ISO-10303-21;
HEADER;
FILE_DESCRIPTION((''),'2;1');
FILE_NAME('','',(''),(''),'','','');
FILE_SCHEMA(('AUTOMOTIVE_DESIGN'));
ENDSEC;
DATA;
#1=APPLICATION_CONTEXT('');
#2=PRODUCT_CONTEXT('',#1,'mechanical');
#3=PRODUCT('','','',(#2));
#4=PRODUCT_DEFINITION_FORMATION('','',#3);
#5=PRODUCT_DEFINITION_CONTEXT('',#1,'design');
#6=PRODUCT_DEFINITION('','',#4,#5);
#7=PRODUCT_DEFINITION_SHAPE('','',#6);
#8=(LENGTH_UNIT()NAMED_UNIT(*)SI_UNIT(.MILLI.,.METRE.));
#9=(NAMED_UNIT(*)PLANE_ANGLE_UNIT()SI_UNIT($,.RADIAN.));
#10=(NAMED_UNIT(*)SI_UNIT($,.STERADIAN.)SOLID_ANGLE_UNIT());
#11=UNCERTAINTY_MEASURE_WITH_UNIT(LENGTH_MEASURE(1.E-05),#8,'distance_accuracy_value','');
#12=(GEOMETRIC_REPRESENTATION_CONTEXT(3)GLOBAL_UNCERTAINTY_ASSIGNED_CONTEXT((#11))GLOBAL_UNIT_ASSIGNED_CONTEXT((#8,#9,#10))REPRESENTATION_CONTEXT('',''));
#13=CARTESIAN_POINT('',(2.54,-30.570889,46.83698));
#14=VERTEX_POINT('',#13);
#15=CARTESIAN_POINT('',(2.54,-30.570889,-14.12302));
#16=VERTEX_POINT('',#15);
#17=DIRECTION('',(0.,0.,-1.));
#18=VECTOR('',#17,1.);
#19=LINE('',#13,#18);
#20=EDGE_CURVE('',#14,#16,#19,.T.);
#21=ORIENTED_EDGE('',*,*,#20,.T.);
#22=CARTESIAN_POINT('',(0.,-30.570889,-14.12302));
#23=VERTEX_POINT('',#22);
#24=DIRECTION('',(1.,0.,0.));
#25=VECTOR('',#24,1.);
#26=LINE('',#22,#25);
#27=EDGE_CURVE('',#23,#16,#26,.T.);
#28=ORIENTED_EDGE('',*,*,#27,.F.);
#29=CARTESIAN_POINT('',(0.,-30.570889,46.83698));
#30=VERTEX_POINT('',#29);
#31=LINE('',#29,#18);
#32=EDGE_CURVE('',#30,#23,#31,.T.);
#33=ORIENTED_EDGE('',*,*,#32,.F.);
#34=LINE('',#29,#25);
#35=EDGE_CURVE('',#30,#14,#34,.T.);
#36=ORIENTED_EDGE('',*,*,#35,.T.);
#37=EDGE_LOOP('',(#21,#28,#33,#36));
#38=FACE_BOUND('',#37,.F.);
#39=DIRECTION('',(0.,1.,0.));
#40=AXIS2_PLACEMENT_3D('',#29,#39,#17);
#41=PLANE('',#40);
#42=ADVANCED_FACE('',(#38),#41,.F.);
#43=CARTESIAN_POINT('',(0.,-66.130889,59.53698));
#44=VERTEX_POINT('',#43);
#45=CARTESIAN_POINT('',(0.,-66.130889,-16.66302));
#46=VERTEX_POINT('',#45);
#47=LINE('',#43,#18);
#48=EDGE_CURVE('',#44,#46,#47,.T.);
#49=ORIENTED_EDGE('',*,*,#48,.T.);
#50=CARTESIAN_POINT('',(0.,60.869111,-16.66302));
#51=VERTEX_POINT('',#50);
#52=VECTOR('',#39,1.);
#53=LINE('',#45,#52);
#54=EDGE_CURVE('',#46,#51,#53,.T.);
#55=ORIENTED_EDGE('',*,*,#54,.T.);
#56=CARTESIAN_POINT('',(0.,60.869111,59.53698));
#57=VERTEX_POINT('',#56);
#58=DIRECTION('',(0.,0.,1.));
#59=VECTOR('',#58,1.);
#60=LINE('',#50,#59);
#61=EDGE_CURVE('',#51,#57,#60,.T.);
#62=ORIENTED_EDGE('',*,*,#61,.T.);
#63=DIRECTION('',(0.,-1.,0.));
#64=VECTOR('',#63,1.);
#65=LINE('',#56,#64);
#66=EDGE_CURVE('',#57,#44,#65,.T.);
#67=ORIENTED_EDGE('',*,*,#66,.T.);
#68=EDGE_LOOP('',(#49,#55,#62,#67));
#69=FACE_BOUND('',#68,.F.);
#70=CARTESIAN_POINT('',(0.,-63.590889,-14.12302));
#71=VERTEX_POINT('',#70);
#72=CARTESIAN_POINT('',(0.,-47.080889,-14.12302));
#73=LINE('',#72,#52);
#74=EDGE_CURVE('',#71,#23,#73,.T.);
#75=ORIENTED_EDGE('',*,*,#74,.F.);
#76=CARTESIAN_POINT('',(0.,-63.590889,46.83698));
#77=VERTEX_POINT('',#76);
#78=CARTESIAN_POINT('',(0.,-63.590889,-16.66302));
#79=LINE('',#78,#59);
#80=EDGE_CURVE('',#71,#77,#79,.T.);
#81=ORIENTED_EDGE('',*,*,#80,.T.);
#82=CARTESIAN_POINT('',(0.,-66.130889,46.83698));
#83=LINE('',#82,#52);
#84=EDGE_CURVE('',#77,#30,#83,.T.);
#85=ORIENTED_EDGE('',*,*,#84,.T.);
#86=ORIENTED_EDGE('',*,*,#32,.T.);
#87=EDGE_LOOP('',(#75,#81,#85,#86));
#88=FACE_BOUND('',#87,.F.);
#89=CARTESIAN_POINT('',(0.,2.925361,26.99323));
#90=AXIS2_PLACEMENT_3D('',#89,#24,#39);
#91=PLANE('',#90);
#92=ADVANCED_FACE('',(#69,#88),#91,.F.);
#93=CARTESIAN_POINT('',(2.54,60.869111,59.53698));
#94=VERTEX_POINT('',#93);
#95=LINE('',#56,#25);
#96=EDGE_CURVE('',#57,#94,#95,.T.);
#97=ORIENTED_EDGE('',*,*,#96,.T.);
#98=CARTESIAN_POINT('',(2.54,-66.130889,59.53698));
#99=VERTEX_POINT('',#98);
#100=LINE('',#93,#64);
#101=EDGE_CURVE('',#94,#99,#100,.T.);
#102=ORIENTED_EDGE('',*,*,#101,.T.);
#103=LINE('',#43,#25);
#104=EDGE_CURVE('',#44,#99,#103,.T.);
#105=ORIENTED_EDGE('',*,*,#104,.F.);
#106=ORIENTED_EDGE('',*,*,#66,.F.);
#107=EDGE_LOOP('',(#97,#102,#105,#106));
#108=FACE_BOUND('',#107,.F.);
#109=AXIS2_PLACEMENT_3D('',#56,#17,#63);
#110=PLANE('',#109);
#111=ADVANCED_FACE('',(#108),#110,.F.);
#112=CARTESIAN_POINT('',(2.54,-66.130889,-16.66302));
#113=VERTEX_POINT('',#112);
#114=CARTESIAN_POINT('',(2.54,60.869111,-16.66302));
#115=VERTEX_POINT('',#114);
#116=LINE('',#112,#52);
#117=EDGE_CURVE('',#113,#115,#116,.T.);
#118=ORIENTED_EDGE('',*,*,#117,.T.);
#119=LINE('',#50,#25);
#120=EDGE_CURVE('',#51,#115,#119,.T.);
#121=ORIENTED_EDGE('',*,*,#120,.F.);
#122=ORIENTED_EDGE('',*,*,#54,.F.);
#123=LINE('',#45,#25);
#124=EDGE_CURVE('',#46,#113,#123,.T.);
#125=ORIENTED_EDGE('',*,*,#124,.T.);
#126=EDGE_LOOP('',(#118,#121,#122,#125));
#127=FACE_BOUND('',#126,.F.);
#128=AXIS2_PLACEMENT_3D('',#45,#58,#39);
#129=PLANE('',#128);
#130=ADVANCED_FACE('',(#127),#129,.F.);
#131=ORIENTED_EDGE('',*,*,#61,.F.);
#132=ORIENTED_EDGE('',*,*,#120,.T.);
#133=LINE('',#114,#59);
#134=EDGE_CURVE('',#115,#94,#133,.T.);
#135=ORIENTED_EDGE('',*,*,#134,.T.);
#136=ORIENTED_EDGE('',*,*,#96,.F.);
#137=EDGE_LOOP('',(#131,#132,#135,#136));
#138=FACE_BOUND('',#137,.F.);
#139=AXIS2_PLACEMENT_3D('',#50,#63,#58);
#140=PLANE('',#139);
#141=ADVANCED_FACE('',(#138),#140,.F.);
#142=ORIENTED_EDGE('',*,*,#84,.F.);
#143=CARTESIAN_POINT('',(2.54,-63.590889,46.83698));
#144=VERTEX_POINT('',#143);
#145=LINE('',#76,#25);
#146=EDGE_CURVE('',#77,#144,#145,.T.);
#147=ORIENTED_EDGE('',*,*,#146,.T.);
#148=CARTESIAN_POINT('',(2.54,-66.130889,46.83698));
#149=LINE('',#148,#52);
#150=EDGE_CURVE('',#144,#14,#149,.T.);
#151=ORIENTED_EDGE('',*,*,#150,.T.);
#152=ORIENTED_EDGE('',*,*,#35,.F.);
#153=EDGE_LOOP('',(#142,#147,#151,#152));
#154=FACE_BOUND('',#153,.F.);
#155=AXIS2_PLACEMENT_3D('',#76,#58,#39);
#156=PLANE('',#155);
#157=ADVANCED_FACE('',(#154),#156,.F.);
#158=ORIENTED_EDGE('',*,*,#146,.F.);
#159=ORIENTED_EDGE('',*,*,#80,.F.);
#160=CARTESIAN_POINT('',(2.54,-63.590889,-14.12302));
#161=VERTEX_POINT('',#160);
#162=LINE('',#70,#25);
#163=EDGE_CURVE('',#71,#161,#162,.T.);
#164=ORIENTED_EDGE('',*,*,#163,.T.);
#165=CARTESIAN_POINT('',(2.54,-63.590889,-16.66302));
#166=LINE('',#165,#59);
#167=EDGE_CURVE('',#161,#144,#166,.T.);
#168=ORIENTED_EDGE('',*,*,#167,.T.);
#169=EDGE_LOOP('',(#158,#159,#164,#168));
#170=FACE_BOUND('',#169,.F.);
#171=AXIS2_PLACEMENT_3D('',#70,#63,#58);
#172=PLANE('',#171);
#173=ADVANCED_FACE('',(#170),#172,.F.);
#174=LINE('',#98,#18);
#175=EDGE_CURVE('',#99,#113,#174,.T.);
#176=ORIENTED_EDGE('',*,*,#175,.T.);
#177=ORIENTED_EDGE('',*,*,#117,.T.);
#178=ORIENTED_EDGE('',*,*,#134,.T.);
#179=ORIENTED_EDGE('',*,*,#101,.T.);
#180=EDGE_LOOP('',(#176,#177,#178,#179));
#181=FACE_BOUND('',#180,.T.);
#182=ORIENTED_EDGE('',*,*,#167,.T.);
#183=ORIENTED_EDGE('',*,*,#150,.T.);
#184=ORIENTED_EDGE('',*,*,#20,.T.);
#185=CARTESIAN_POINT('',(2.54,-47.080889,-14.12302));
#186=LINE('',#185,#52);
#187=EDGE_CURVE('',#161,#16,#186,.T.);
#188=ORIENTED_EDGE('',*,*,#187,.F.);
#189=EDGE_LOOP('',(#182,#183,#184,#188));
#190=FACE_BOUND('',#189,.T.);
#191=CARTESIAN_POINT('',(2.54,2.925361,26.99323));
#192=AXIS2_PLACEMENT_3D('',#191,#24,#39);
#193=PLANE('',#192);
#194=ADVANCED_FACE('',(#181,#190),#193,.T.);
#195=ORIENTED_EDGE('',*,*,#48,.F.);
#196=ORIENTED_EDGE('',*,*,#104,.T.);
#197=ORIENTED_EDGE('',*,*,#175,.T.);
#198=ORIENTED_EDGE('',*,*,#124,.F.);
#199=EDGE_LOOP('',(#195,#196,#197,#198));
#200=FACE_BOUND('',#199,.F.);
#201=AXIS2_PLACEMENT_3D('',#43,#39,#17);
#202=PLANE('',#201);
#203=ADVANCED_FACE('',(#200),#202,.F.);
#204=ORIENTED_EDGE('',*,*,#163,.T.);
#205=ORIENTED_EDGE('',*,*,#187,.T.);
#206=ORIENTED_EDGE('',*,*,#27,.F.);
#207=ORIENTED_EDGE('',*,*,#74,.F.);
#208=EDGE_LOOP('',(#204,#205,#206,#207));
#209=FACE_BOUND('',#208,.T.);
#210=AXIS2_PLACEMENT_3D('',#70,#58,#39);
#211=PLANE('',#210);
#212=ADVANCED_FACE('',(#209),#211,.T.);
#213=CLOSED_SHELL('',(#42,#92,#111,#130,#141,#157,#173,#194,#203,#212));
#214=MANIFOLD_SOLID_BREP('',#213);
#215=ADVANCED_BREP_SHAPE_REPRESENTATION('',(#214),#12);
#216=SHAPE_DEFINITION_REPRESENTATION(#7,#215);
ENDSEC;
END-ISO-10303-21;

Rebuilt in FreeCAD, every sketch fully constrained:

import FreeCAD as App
import Part
import Sketcher
from FreeCAD import Vector
Q = App.Units.Quantity

doc = App.newDocument("Part")
params = doc.addObject("Spreadsheet::Sheet", "Params")
for row, (alias, value) in enumerate([
    ("sketch1_width", "5 in"),
    ("sketch1_height", "3 in"),
    ("sketch1_width2", "1.3 in"),
    ("sketch1_height2", "2.4 in"),
    ("pad1_length", "0.1 in"),
], start=1):
    params.set(f"A{row}", alias)
    params.set(f"B{row}", "=" + value)
    params.setAlias(f"B{row}", alias)

body = doc.addObject("PartDesign::Body", "Body")

# Sketch on YZ plane
sketch1 = body.newObject("Sketcher::SketchObject", "Sketch")
sketch1.AttachmentSupport = (doc.getObject("YZ_Plane"), [""])
sketch1.MapMode = "FlatFace"
sketch1.addGeometry(Part.LineSegment(Vector(-66, 60, 0), Vector(-66, -17, 0)), False)
sketch1.addGeometry(Part.LineSegment(Vector(-66, -17, 0), Vector(61, -17, 0)), False)
sketch1.addGeometry(Part.LineSegment(Vector(61, -17, 0), Vector(61, 60, 0)), False)
sketch1.addGeometry(Part.LineSegment(Vector(61, 60, 0), Vector(-66, 60, 0)), False)
sketch1.addGeometry(Part.LineSegment(Vector(-64, -14, 0), Vector(-64, 47, 0)), False)
sketch1.addGeometry(Part.LineSegment(Vector(-64, 47, 0), Vector(-31, 47, 0)), False)
sketch1.addGeometry(Part.LineSegment(Vector(-31, 47, 0), Vector(-31, -14, 0)), False)
sketch1.addGeometry(Part.LineSegment(Vector(-31, -14, 0), Vector(-64, -14, 0)), False)
sketch1.addConstraint(Sketcher.Constraint("Coincident", 0, 2, 1, 1))
sketch1.addConstraint(Sketcher.Constraint("Coincident", 1, 2, 2, 1))
sketch1.addConstraint(Sketcher.Constraint("Coincident", 2, 2, 3, 1))
sketch1.addConstraint(Sketcher.Constraint("Coincident", 3, 2, 0, 1))
sketch1.addConstraint(Sketcher.Constraint("Coincident", 4, 2, 5, 1))
sketch1.addConstraint(Sketcher.Constraint("Coincident", 5, 2, 6, 1))
sketch1.addConstraint(Sketcher.Constraint("Coincident", 6, 2, 7, 1))
sketch1.addConstraint(Sketcher.Constraint("Coincident", 7, 2, 4, 1))
sketch1.addConstraint(Sketcher.Constraint("Vertical", 0))
sketch1.addConstraint(Sketcher.Constraint("Horizontal", 1))
sketch1.addConstraint(Sketcher.Constraint("Vertical", 2))
sketch1.addConstraint(Sketcher.Constraint("Horizontal", 3))
sketch1.addConstraint(Sketcher.Constraint("Vertical", 4))
sketch1.addConstraint(Sketcher.Constraint("Horizontal", 5))
sketch1.addConstraint(Sketcher.Constraint("Vertical", 6))
sketch1.addConstraint(Sketcher.Constraint("Horizontal", 7))
sketch1.addConstraint(Sketcher.Constraint("DistanceX", 1, 1, 1, 2, Q("5 in")))
sketch1.addConstraint(Sketcher.Constraint("DistanceY", 0, 2, 0, 1, Q("3 in")))
sketch1.addConstraint(Sketcher.Constraint("DistanceX", 5, 1, 5, 2, Q("1.3 in")))
sketch1.addConstraint(Sketcher.Constraint("DistanceY", 4, 1, 4, 2, Q("2.4 in")))
sketch1.addConstraint(Sketcher.Constraint("DistanceX", 3, 2, 4, 2, Q("0.1 in")))
sketch1.addConstraint(Sketcher.Constraint("DistanceY", 4, 2, 3, 2, Q("0.5 in")))
sketch1.addConstraint(Sketcher.Constraint("DistanceX", 0, 2, -1, 1, Q("66.130889 mm")))
sketch1.addConstraint(Sketcher.Constraint("DistanceY", 0, 2, -1, 1, Q("16.66302 mm")))
sketch1.setExpression("Constraints[16]", "Params.sketch1_width")
sketch1.setExpression("Constraints[17]", "Params.sketch1_height")
sketch1.setExpression("Constraints[18]", "Params.sketch1_width2")
sketch1.setExpression("Constraints[19]", "Params.sketch1_height2")
pad1 = body.newObject("PartDesign::Pad", "Pad")
pad1.Profile = sketch1
pad1.setExpression("Length", "Params.pad1_length")

doc.recompute()
